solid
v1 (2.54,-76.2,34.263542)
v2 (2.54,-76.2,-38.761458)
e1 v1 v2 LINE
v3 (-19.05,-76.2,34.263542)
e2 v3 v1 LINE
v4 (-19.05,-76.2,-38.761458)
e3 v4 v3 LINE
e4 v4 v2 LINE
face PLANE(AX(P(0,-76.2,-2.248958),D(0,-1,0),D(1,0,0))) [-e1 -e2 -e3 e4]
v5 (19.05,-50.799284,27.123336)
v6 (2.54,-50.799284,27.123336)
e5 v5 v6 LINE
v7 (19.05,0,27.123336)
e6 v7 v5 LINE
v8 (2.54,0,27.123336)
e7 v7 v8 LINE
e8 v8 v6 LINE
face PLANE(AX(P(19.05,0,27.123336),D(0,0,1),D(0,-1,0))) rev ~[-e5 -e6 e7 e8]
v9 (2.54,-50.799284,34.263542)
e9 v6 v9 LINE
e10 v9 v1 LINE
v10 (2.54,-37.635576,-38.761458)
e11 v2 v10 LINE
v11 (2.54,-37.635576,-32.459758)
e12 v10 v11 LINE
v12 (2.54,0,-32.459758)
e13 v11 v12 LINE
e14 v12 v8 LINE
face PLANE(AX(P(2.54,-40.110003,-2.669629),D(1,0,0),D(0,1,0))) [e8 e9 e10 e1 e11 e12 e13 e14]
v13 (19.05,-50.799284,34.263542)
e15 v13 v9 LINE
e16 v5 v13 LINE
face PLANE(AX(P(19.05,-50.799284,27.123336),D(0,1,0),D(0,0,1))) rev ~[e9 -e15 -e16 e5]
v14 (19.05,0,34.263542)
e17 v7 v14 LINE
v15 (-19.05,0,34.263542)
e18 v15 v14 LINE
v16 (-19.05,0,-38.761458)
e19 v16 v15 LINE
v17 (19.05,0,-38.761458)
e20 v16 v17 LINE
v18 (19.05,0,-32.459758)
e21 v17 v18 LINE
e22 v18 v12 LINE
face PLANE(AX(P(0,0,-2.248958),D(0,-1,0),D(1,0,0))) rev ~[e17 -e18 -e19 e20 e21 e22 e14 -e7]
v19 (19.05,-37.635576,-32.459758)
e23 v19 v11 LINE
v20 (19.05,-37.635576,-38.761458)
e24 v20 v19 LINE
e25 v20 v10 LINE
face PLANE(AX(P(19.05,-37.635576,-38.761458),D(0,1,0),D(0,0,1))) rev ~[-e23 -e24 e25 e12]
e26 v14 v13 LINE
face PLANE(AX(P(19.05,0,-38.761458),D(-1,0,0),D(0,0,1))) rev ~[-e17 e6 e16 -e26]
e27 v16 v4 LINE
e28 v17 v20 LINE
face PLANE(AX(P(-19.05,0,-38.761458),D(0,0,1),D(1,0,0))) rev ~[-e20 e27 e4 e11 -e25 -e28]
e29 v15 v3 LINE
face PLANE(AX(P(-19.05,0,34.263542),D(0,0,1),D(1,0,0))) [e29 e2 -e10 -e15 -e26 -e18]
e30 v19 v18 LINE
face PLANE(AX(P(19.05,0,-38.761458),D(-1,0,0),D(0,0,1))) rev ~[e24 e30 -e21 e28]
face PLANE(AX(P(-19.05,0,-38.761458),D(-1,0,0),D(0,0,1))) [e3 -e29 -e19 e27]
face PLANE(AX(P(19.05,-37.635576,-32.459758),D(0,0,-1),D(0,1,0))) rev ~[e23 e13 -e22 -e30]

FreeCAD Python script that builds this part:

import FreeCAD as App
import Part
import Sketcher
from FreeCAD import Vector
Q = App.Units.Quantity

doc = App.newDocument("Part")
body = doc.addObject("PartDesign::Body", "Body")

# Sketch on XZ plane
sketch1 = body.newObject("Sketcher::SketchObject", "Sketch")
sketch1.AttachmentSupport = (doc.getObject("XZ_Plane"), [""])
sketch1.MapMode = "FlatFace"
sketch1.addGeometry([
    Part.LineSegment(Vector(-19, 34, 0), Vector(-19, -39, 0)),
    Part.LineSegment(Vector(-19, -39, 0), Vector(19, -39, 0)),
    Part.LineSegment(Vector(19, -39, 0), Vector(19, 34, 0)),
    Part.LineSegment(Vector(19, 34, 0), Vector(-19, 34, 0)),
], False)
sketch1.addConstraint([
    Sketcher.Constraint("Coincident", 0, 2, 1, 1),
    Sketcher.Constraint("Coincident", 1, 2, 2, 1),
    Sketcher.Constraint("Coincident", 2, 2, 3, 1),
    Sketcher.Constraint("Coincident", 3, 2, 0, 1),
    Sketcher.Constraint("Vertical", 0),
    Sketcher.Constraint("Horizontal", 1),
    Sketcher.Constraint("Vertical", 2),
    Sketcher.Constraint("Horizontal", 3),
    Sketcher.Constraint("DistanceX", 1, 1, 1, 2, Q("1.5 in")),
    Sketcher.Constraint("DistanceY", 0, 2, 0, 1, Q("2.875 in")),
    Sketcher.Constraint("DistanceX", 0, 2, -1, 1, Q("0.75 in")),
    Sketcher.Constraint("DistanceY", 0, 2, -1, 1, 38.761458),
])
pad1 = body.newObject("PartDesign::Pad", "Pad")
pad1.Profile = sketch1
pad1.Length = Q("3 in")

# Sketch on YZ plane
sketch2 = body.newObject("Sketcher::SketchObject", "Sketch001")
sketch2.AttachmentSupport = (doc.getObject("YZ_Plane"), [""])
sketch2.MapMode = "FlatFace"
sketch2.AttachmentOffset = App.Placement(Vector(0, 0, 0.75 * 25.4), App.Rotation())
sketch2.addGeometry([
    Part.LineSegment(Vector(-51, 27, 0), Vector(-51, 34, 0)),  # 0
    Part.LineSegment(Vector(-51, 34, 0), Vector(-76, 34, 0)),  # 1
    Part.LineSegment(Vector(-76, 34, 0), Vector(-76, -39, 0)),  # 2
    Part.LineSegment(Vector(-76, -39, 0), Vector(-38, -39, 0)),  # 3
    Part.LineSegment(Vector(-38, -39, 0), Vector(-38, -32, 0)),  # 4
    Part.LineSegment(Vector(-38, -32, 0), Vector(0, -32, 0)),  # 5
    Part.LineSegment(Vector(0, -32, 0), Vector(0, 27, 0)),  # 6
    Part.LineSegment(Vector(0, 27, 0), Vector(-51, 27, 0)),  # 7
], False)
sketch2.addConstraint([
    Sketcher.Constraint("Coincident", 0, 2, 1, 1),
    Sketcher.Constraint("Coincident", 1, 2, 2, 1),
    Sketcher.Constraint("Coincident", 2, 2, 3, 1),
    Sketcher.Constraint("Coincident", 3, 2, 4, 1),
    Sketcher.Constraint("Coincident", 4, 2, 5, 1),
    Sketcher.Constraint("Coincident", 5, 2, 6, 1),
    Sketcher.Constraint("Coincident", 6, 2, 7, 1),
    Sketcher.Constraint("Coincident", 7, 2, 0, 1),
    Sketcher.Constraint("Vertical", 0),
    Sketcher.Constraint("Horizontal", 1),
    Sketcher.Constraint("Vertical", 2),
    Sketcher.Constraint("Horizontal", 3),
    Sketcher.Constraint("Vertical", 4),
    Sketcher.Constraint("Horizontal", 5),
    Sketcher.Constraint("Vertical", 6),
    Sketcher.Constraint("Horizontal", 7),
    Sketcher.Constraint("PointOnObject", 5, 2, -2),
    Sketcher.Constraint("DistanceX", 1, 2, -1, 1, Q("3 in")),
    Sketcher.Constraint("DistanceY", 2, 2, 2, 1, Q("2.875 in")),
    Sketcher.Constraint("DistanceY", 4, 1, 4, 2, 6.3017),
    Sketcher.Constraint("DistanceX", 1, 2, 1, 1, 25.400716),
    Sketcher.Constraint("DistanceX", 3, 1, 3, 2, 38.564424),
    Sketcher.Constraint("DistanceY", 0, 1, 0, 2, 7.140206),
    Sketcher.Constraint("DistanceY", -1, 1, 0, 2, 34.263542),
])
pocket1 = body.newObject("PartDesign::Pocket", "Pocket")
pocket1.Profile = sketch2
pocket1.Length = Q("0.65 in")

doc.recompute()
